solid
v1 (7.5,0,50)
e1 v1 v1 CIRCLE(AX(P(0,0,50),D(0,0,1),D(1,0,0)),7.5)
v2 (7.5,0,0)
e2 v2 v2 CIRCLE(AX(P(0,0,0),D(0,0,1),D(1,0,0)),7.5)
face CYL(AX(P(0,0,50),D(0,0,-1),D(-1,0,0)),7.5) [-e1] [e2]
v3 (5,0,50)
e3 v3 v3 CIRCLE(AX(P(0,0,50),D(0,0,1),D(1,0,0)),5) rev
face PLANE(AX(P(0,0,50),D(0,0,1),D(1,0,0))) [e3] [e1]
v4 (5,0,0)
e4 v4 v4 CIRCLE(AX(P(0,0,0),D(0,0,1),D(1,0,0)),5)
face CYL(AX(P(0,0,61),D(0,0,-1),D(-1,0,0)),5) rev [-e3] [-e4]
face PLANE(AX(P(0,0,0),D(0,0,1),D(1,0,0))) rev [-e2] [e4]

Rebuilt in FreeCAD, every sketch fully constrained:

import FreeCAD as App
import Part
import Sketcher

V = App.Vector
Q = App.Units.Quantity

doc = App.newDocument("Part")
body = doc.addObject("PartDesign::Body", "Body")

# Sketch on XY plane
sketch1 = body.newObject("Sketcher::SketchObject", "Sketch")
sketch1.AttachmentSupport = (doc.getObject("XY_Plane"), [""])
sketch1.MapMode = "FlatFace"
sketch1.AttachmentOffset = App.Placement(V(0, 0, 50), App.Rotation())
sketch1.addGeometry(Part.Circle(V(0, 0, 0), V(0, 0, 1), 7.5), False)
sketch1.addConstraint(Sketcher.Constraint("Coincident", 0, 3, -1, 1))
sketch1.addConstraint(Sketcher.Constraint("Diameter", 0, Q("15 mm")))

# Sketch on XY plane
sketch2 = body.newObject("Sketcher::SketchObject", "Sketch001")
sketch2.AttachmentSupport = (doc.getObject("XY_Plane"), [""])
sketch2.MapMode = "FlatFace"
sketch2.addGeometry(Part.Circle(V(0, 0, 0), V(0, 0, 1), 7.5), False)
sketch2.addConstraint(Sketcher.Constraint("Coincident", 0, 3, -1, 1))
sketch2.addConstraint(Sketcher.Constraint("Diameter", 0, Q("15 mm")))

additiveloft = body.newObject("PartDesign::AdditiveLoft", "AdditiveLoft")
additiveloft.Profile = sketch1
additiveloft.Sections = [sketch2]

# Sketch on XY plane
sketch3 = body.newObject("Sketcher::SketchObject", "Sketch002")
sketch3.AttachmentSupport = (doc.getObject("XY_Plane"), [""])
sketch3.MapMode = "FlatFace"
sketch3.addGeometry(Part.Circle(V(0, 0, 0), V(0, 0, 1), 5), False)
sketch3.addConstraint(Sketcher.Constraint("Coincident", 0, 3, -1, 1))
sketch3.addConstraint(Sketcher.Constraint("Diameter", 0, Q("10 mm")))
pocket1 = body.newObject("PartDesign::Pocket", "Pocket")
pocket1.Profile = sketch3
pocket1.Length = 61
pocket1.Reversed = True

doc.recompute()
